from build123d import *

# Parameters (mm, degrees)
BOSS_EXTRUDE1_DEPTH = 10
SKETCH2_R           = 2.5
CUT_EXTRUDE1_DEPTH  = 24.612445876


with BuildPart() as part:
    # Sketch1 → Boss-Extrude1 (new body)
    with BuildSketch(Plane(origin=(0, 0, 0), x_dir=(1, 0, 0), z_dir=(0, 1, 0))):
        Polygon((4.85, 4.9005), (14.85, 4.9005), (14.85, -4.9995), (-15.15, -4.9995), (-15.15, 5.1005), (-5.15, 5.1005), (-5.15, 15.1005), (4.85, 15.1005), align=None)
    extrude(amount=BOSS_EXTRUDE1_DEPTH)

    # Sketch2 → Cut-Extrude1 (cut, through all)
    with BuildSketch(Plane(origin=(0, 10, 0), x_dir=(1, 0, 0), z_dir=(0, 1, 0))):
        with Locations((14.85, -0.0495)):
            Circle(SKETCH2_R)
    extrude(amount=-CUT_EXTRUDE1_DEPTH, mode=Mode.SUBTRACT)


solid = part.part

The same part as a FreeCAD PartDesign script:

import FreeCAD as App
import Part
import Sketcher


def add_polygon(sketch, points):
    """Adds a closed chain of lines whose ends are joined by coincident constraints."""
    first, n = sketch.GeometryCount, len(points)
    for a, b in zip(points, points[1:] + points[:1]):
        sketch.addGeometry(Part.LineSegment(App.Vector(*a, 0), App.Vector(*b, 0)), False)
    for i in range(n):
        sketch.addConstraint(Sketcher.Constraint("Coincident", first + i, 2, first + (i + 1) % n, 1))

doc = App.newDocument("Part")
params = doc.addObject("Spreadsheet::Sheet", "Params")
for row, (alias, value) in enumerate([
    ("sketch1_width", "10 mm"),
    ("sketch1_height", "10.2 mm"),
    ("sketch1_height2", "10.1 mm"),
    ("pad1_length", "10 mm"),
    ("sketch2_diameter", "5 mm"),
], start=1):
    params.set(f"A{row}", alias)
    params.set(f"B{row}", "=" + value)
    params.setAlias(f"B{row}", alias)

body = doc.addObject("PartDesign::Body", "Body")

# Sketch on XZ plane
sketch1 = body.newObject("Sketcher::SketchObject", "Sketch")
sketch1.AttachmentSupport = (doc.getObject("XZ_Plane"), [""])
sketch1.MapMode = "FlatFace"
add_polygon(sketch1, [(15, -5), (5, -5), (5, -15), (-5, -15), (-5, -5), (-15, -5), (-15, 5), (15, 5)])  # lines 0-7
sketch1.addConstraint([
    Sketcher.Constraint("Horizontal", 0),
    Sketcher.Constraint("Vertical", 1),
    Sketcher.Constraint("Horizontal", 2),
    Sketcher.Constraint("Vertical", 3),
    Sketcher.Constraint("Horizontal", 4),
    Sketcher.Constraint("Vertical", 5),
    Sketcher.Constraint("Horizontal", 6),
    Sketcher.Constraint("Vertical", 7),
    Sketcher.Constraint("Equal", 0, 2),
    Sketcher.Constraint("Equal", 2, 4),
    Sketcher.Constraint("Equal", 4, 3),
    Sketcher.Constraint("DistanceX", 0, 2, 0, 1, 10.0),
    Sketcher.Constraint("DistanceY", 1, 2, 1, 1, 10.2),
    Sketcher.Constraint("DistanceY", 5, 1, 5, 2, 10.1),
    Sketcher.Constraint("DistanceX", -1, 1, 0, 2, 4.85),
    Sketcher.Constraint("DistanceY", 0, 2, -1, 1, 4.9005),
])
sketch1.setExpression("Constraints[19]", "Params.sketch1_width")
sketch1.setExpression("Constraints[20]", "Params.sketch1_height")
sketch1.setExpression("Constraints[21]", "Params.sketch1_height2")
pad1 = body.newObject("PartDesign::Pad", "Pad")
pad1.Profile = sketch1
pad1.setExpression("Length", "Params.pad1_length")
pad1.Reversed = True

# Sketch on XZ plane
sketch2 = body.newObject("Sketcher::SketchObject", "Sketch001")
sketch2.AttachmentSupport = (doc.getObject("XZ_Plane"), [""])
sketch2.MapMode = "FlatFace"
sketch2.AttachmentOffset = App.Placement(App.Vector(0, 0, -10), App.Rotation())
sketch2.addGeometry(Part.Circle(App.Vector(14.8, 0, 0), App.Vector(0, 0, 1), 2.5), False)
sketch2.addConstraint([
    Sketcher.Constraint("Diameter", 0, 5.0),
    Sketcher.Constraint("DistanceX", -1, 1, 0, 3, 14.85),
    Sketcher.Constraint("DistanceY", -1, 1, 0, 3, 0.0495),
])
sketch2.setExpression("Constraints[0]", "Params.sketch2_diameter")
pocket1 = body.newObject("PartDesign::Pocket", "Pocket")
pocket1.Profile = sketch2
pocket1.Type = "ThroughAll"
pocket1.Reversed = True

doc.recompute()
